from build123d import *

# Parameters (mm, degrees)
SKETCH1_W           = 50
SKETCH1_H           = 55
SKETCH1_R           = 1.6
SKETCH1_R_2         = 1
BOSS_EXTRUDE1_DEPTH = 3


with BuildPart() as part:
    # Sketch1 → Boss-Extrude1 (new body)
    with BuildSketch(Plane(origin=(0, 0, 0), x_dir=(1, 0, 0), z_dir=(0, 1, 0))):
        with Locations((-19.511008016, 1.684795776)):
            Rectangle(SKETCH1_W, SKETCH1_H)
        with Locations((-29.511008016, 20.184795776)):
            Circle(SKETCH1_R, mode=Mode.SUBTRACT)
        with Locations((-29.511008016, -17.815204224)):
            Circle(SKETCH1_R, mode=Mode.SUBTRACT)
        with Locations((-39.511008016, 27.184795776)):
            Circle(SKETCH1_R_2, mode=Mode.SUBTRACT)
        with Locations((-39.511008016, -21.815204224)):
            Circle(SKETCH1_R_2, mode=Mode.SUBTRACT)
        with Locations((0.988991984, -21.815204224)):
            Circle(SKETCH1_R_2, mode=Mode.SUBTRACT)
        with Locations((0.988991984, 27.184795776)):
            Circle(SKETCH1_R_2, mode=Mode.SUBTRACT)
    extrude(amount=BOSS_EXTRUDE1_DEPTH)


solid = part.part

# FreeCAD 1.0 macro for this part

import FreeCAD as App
import Part
import Sketcher

V = App.Vector
Q = App.Units.Quantity

doc = App.newDocument("Part")
body = doc.addObject("PartDesign::Body", "Body")

sketch1 = body.newObject("Sketcher::SketchObject", "Sketch")
sketch1.AttachmentSupport = (doc.getObject("XZ_Plane"), [""])
sketch1.MapMode = "FlatFace"
sketch1.addGeometry(Part.LineSegment(V(-44.5, -29.2, 0), V(-44.5, 25.8, 0)), False)
sketch1.addGeometry(Part.LineSegment(V(-44.5, 25.8, 0), V(5.5, 25.8, 0)), False)
sketch1.addGeometry(Part.LineSegment(V(5.5, 25.8, 0), V(5.5, -29.2, 0)), False)
sketch1.addGeometry(Part.LineSegment(V(5.5, -29.2, 0), V(-44.5, -29.2, 0)), False)
sketch1.addGeometry(Part.Circle(V(-39.5, 21.8, 0), V(0, 0, 1), 1), False)
sketch1.addGeometry(Part.Circle(V(-29.5, 17.8, 0), V(0, 0, 1), 1.6), False)
sketch1.addGeometry(Part.Circle(V(1, 21.8, 0), V(0, 0, 1), 1), False)
sketch1.addGeometry(Part.Circle(V(-39.5, -27.2, 0), V(0, 0, 1), 1), False)
sketch1.addGeometry(Part.Circle(V(-29.5, -20.2, 0), V(0, 0, 1), 1.6), False)
sketch1.addGeometry(Part.Circle(V(1, -27.2, 0), V(0, 0, 1), 1), False)
sketch1.addConstraint(Sketcher.Constraint("Coincident", 0, 2, 1, 1))
sketch1.addConstraint(Sketcher.Constraint("Coincident", 1, 2, 2, 1))
sketch1.addConstraint(Sketcher.Constraint("Coincident", 2, 2, 3, 1))
sketch1.addConstraint(Sketcher.Constraint("Coincident", 3, 2, 0, 1))
sketch1.addConstraint(Sketcher.Constraint("Vertical", 0))
sketch1.addConstraint(Sketcher.Constraint("Horizontal", 1))
sketch1.addConstraint(Sketcher.Constraint("Vertical", 2))
sketch1.addConstraint(Sketcher.Constraint("Horizontal", 3))
sketch1.addConstraint(Sketcher.Constraint("Equal", 4, 6))
sketch1.addConstraint(Sketcher.Constraint("Equal", 6, 7))
sketch1.addConstraint(Sketcher.Constraint("Equal", 5, 8))
sketch1.addConstraint(Sketcher.Constraint("Equal", 7, 9))
sketch1.addConstraint(Sketcher.Constraint("Horizontal", 4, 3, 6, 3))
sketch1.addConstraint(Sketcher.Constraint("Horizontal", 7, 3, 9, 3))
sketch1.addConstraint(Sketcher.Constraint("Vertical", 4, 3, 7, 3))
sketch1.addConstraint(Sketcher.Constraint("Vertical", 5, 3, 8, 3))
sketch1.addConstraint(Sketcher.Constraint("Vertical", 6, 3, 9, 3))
sketch1.addConstraint(Sketcher.Constraint("Diameter", 4, Q("2 mm")))
sketch1.addConstraint(Sketcher.Constraint("Diameter", 5, Q("3.2 mm")))
sketch1.addConstraint(Sketcher.Constraint("DistanceX", 1, 1, 1, 2, Q("50 mm")))
sketch1.addConstraint(Sketcher.Constraint("DistanceY", 0, 1, 0, 2, Q("55 mm")))
sketch1.addConstraint(Sketcher.Constraint("DistanceX", 4, 3, 5, 3, Q("10 mm")))
sketch1.addConstraint(Sketcher.Constraint("DistanceY", 5, 3, 4, 3, Q("4 mm")))
sketch1.addConstraint(Sketcher.Constraint("DistanceY", 7, 3, 5, 3, Q("45 mm")))
sketch1.addConstraint(Sketcher.Constraint("DistanceY", 7, 3, 8, 3, Q("7 mm")))
sketch1.addConstraint(Sketcher.Constraint("DistanceX", 0, 2, 4, 3, Q("5 mm")))
sketch1.addConstraint(Sketcher.Constraint("DistanceY", 4, 3, 0, 2, Q("4 mm")))
sketch1.addConstraint(Sketcher.Constraint("DistanceX", 5, 3, 6, 3, Q("30.5 mm")))
sketch1.addConstraint(Sketcher.Constraint("DistanceX", 4, 3, -1, 1, Q("39.511008 mm")))
sketch1.addConstraint(Sketcher.Constraint("DistanceY", -1, 1, 4, 3, Q("21.815204 mm")))
pad1 = body.newObject("PartDesign::Pad", "Pad")
pad1.Profile = sketch1
pad1.Length = 3
pad1.Reversed = True

doc.recompute()
